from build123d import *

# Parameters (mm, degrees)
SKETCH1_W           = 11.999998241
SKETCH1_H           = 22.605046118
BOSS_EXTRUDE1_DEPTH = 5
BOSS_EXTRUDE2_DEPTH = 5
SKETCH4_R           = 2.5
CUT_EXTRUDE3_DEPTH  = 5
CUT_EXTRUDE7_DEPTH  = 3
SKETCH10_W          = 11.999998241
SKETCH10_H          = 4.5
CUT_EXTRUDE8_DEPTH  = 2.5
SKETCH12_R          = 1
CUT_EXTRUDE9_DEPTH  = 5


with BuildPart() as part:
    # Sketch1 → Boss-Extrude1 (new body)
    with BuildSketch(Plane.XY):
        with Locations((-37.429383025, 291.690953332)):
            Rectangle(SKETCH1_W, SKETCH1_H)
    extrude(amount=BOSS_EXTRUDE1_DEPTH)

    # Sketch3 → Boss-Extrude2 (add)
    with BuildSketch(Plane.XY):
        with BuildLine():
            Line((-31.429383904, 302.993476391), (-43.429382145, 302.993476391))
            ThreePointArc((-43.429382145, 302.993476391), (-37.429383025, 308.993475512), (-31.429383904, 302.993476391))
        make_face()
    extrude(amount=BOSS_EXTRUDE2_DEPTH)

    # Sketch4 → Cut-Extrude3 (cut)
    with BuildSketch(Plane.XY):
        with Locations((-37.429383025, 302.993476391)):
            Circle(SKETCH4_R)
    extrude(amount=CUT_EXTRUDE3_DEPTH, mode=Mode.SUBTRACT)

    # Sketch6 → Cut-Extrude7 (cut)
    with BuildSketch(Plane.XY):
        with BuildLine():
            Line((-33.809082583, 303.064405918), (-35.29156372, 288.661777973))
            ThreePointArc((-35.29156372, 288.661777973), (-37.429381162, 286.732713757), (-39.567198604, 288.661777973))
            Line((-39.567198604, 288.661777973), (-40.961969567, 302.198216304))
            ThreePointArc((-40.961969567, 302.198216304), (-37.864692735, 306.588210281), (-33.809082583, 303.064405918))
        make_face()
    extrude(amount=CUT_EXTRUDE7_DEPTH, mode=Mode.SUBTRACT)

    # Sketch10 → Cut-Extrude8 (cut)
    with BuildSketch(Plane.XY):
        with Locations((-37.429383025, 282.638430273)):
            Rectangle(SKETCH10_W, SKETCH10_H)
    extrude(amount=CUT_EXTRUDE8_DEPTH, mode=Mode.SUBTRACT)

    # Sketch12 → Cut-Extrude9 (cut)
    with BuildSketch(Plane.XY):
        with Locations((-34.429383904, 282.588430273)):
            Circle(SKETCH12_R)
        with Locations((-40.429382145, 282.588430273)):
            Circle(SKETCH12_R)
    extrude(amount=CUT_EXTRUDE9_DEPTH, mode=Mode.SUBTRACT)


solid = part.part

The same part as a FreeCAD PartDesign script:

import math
import FreeCAD as App
import Part
import Sketcher

doc = App.newDocument("Part")
body = doc.addObject("PartDesign::Body", "Body")

# Sketch on XY plane
sketch1 = doc.addObject("Sketcher::SketchObject", "Sketch")
body.addObject(sketch1)
sketch1.AttachmentSupport = (doc.XY_Plane, [""])
sketch1.MapMode = "FlatFace"
sketch1.addGeometry(Part.LineSegment(App.Vector(-43, 303, 0), App.Vector(-43, 280, 0)), False)
sketch1.addGeometry(Part.LineSegment(App.Vector(-43, 280, 0), App.Vector(-31, 280, 0)), False)
sketch1.addGeometry(Part.LineSegment(App.Vector(-31, 280, 0), App.Vector(-31, 303, 0)), False)
sketch1.addGeometry(Part.LineSegment(App.Vector(-31, 303, 0), App.Vector(-43, 303, 0)), False)
sketch1.addConstraint(Sketcher.Constraint("Coincident", 0, 2, 1, 1))
sketch1.addConstraint(Sketcher.Constraint("Coincident", 1, 2, 2, 1))
sketch1.addConstraint(Sketcher.Constraint("Coincident", 2, 2, 3, 1))
sketch1.addConstraint(Sketcher.Constraint("Coincident", 3, 2, 0, 1))
sketch1.addConstraint(Sketcher.Constraint("Vertical", 0))
sketch1.addConstraint(Sketcher.Constraint("Horizontal", 1))
sketch1.addConstraint(Sketcher.Constraint("Vertical", 2))
sketch1.addConstraint(Sketcher.Constraint("Horizontal", 3))
sketch1.addConstraint(Sketcher.Constraint("DistanceX", 1, 1, 1, 2, 11.999998))
sketch1.addConstraint(Sketcher.Constraint("DistanceY", 0, 2, 0, 1, 22.605046))
sketch1.addConstraint(Sketcher.Constraint("DistanceY", -1, 1, 0, 2, 280.38843))
sketch1.addConstraint(Sketcher.Constraint("DistanceX", 0, 2, -1, 1, 43.429382))
pad1 = doc.addObject("PartDesign::Pad", "Pad")
body.addObject(pad1)
pad1.Profile = sketch1
pad1.Length = 5

# Sketch on XY plane
sketch2 = doc.addObject("Sketcher::SketchObject", "Sketch001")
body.addObject(sketch2)
sketch2.AttachmentSupport = (doc.XY_Plane, [""])
sketch2.MapMode = "FlatFace"
sketch2.addGeometry(Part.LineSegment(App.Vector(-43, 303, 0), App.Vector(-31, 303, 0)), False)
sketch2.addGeometry(Part.ArcOfCircle(Part.Circle(App.Vector(-37, 303, 0), App.Vector(0, 0, 1), 6), math.radians(0), math.radians(180)), False)
sketch2.addConstraint(Sketcher.Constraint("Coincident", 0, 1, 1, 2))
sketch2.addConstraint(Sketcher.Constraint("Coincident", 1, 1, 0, 2))
sketch2.addConstraint(Sketcher.Constraint("Horizontal", 0))
sketch2.addConstraint(Sketcher.Constraint("Horizontal", 1, 3, 0, 1))
sketch2.addConstraint(Sketcher.Constraint("Radius", 1, 5.999999))
sketch2.addConstraint(Sketcher.Constraint("DistanceX", 1, 3, -1, 1, 37.429383))
sketch2.addConstraint(Sketcher.Constraint("DistanceY", -1, 1, 1, 3, 302.993476))
pad2 = doc.addObject("PartDesign::Pad", "Pad001")
body.addObject(pad2)
pad2.Profile = sketch2
pad2.Length = 5

# Sketch on XY plane
sketch3 = doc.addObject("Sketcher::SketchObject", "Sketch002")
body.addObject(sketch3)
sketch3.AttachmentSupport = (doc.XY_Plane, [""])
sketch3.MapMode = "FlatFace"
sketch3.addGeometry(Part.Circle(App.Vector(-37.4, 303, 0), App.Vector(0, 0, 1), 2.5), False)
sketch3.addConstraint(Sketcher.Constraint("Diameter", 0, 5.0))
sketch3.addConstraint(Sketcher.Constraint("DistanceX", 0, 3, -1, 1, 37.429383))
sketch3.addConstraint(Sketcher.Constraint("DistanceY", -1, 1, 0, 3, 302.993476))
pocket1 = doc.addObject("PartDesign::Pocket", "Pocket")
body.addObject(pocket1)
pocket1.Profile = sketch3
pocket1.Length = 5
pocket1.Reversed = True

# Sketch on XY plane
sketch4 = doc.addObject("Sketcher::SketchObject", "Sketch003")
body.addObject(sketch4)
sketch4.AttachmentSupport = (doc.XY_Plane, [""])
sketch4.MapMode = "FlatFace"
sketch4.addGeometry(Part.LineSegment(App.Vector(-35.3, 288.7, 0), App.Vector(-33.8, 303.1, 0)), False)
sketch4.addGeometry(Part.ArcOfCircle(Part.Circle(App.Vector(-37.4, 303, 0), App.Vector(0, 0, 1), 3.6), math.radians(1), math.radians(193)), False)
sketch4.addGeometry(Part.LineSegment(App.Vector(-41, 302.2, 0), App.Vector(-39.6, 288.7, 0)), False)
sketch4.addGeometry(Part.ArcOfCircle(Part.Circle(App.Vector(-37.4, 288.9, 0), App.Vector(0, 0, 1), 2.1), math.radians(-174), math.radians(-6)), False)
sketch4.addConstraint(Sketcher.Constraint("Coincident", 0, 2, 1, 1))
sketch4.addConstraint(Sketcher.Constraint("Coincident", 1, 2, 2, 1))
sketch4.addConstraint(Sketcher.Constraint("Coincident", 2, 2, 3, 1))
sketch4.addConstraint(Sketcher.Constraint("Tangent", 3, 2, 0, 1))
sketch4.addConstraint(Sketcher.Constraint("Horizontal", 2, 2, 3, 2))
sketch4.addConstraint(Sketcher.Constraint("Vertical", 1, 3, 3, 3))
sketch4.addConstraint(Sketcher.Constraint("Radius", 1, 3.620995))
sketch4.addConstraint(Sketcher.Constraint("Radius", 3, 2.149113))
sketch4.addConstraint(Sketcher.Constraint("DistanceX", 2, 2, -1, 1, 39.567199))
sketch4.addConstraint(Sketcher.Constraint("DistanceX", 1, 3, 0, 2, 3.6203))
sketch4.addConstraint(Sketcher.Constraint("DistanceY", 2, 2, 1, 3, 14.331698))
sketch4.addConstraint(Sketcher.Constraint("DistanceX", 1, 2, -1, 1, 40.96197))
sketch4.addConstraint(Sketcher.Constraint("DistanceY", -1, 1, 1, 3, 302.993476))
pocket2 = doc.addObject("PartDesign::Pocket", "Pocket001")
body.addObject(pocket2)
pocket2.Profile = sketch4
pocket2.Length = 3
pocket2.Reversed = True

# Sketch on XY plane
sketch5 = doc.addObject("Sketcher::SketchObject", "Sketch004")
body.addObject(sketch5)
sketch5.AttachmentSupport = (doc.XY_Plane, [""])
sketch5.MapMode = "FlatFace"
sketch5.addGeometry(Part.LineSegment(App.Vector(-43.4, 284.9, 0), App.Vector(-43.4, 280.4, 0)), False)
sketch5.addGeometry(Part.LineSegment(App.Vector(-43.4, 280.4, 0), App.Vector(-31.4, 280.4, 0)), False)
sketch5.addGeometry(Part.LineSegment(App.Vector(-31.4, 280.4, 0), App.Vector(-31.4, 284.9, 0)), False)
sketch5.addGeometry(Part.LineSegment(App.Vector(-31.4, 284.9, 0), App.Vector(-43.4, 284.9, 0)), False)
sketch5.addConstraint(Sketcher.Constraint("Coincident", 0, 2, 1, 1))
sketch5.addConstraint(Sketcher.Constraint("Coincident", 1, 2, 2, 1))
sketch5.addConstraint(Sketcher.Constraint("Coincident", 2, 2, 3, 1))
sketch5.addConstraint(Sketcher.Constraint("Coincident", 3, 2, 0, 1))
sketch5.addConstraint(Sketcher.Constraint("Vertical", 0))
sketch5.addConstraint(Sketcher.Constraint("Horizontal", 1))
sketch5.addConstraint(Sketcher.Constraint("Vertical", 2))
sketch5.addConstraint(Sketcher.Constraint("Horizontal", 3))
sketch5.addConstraint(Sketcher.Constraint("DistanceX", 1, 1, 1, 2, 11.999998))
sketch5.addConstraint(Sketcher.Constraint("DistanceY", 0, 2, 0, 1, 4.5))
sketch5.addConstraint(Sketcher.Constraint("DistanceY", -1, 1, 0, 2, 280.38843))
sketch5.addConstraint(Sketcher.Constraint("DistanceX", 0, 2, -1, 1, 43.429382))
pocket3 = doc.addObject("PartDesign::Pocket", "Pocket002")
body.addObject(pocket3)
pocket3.Profile = sketch5
pocket3.Length = 2.5
pocket3.Reversed = True

# Sketch on XY plane
sketch6 = doc.addObject("Sketcher::SketchObject", "Sketch005")
body.addObject(sketch6)
sketch6.AttachmentSupport = (doc.XY_Plane, [""])
sketch6.MapMode = "FlatFace"
sketch6.addGeometry(Part.Circle(App.Vector(-34.4, 282.6, 0), App.Vector(0, 0, 1), 1), False)
sketch6.addGeometry(Part.Circle(App.Vector(-40.4, 282.6, 0), App.Vector(0, 0, 1), 1), False)
sketch6.addConstraint(Sketcher.Constraint("Equal", 0, 1))
sketch6.addConstraint(Sketcher.Constraint("Horizontal", 0, 3, 1, 3))
sketch6.addConstraint(Sketcher.Constraint("Diameter", 0, 2.0))
sketch6.addConstraint(Sketcher.Constraint("DistanceX", 1, 3, 0, 3, 5.999998))
sketch6.addConstraint(Sketcher.Constraint("DistanceY", -1, 1, 0, 3, 282.58843))
sketch6.addConstraint(Sketcher.Constraint("DistanceX", 0, 3, -1, 1, 34.429384))
pocket4 = doc.addObject("PartDesign::Pocket", "Pocket003")
body.addObject(pocket4)
pocket4.Profile = sketch6
pocket4.Length = 5
pocket4.Reversed = True

doc.recompute()
